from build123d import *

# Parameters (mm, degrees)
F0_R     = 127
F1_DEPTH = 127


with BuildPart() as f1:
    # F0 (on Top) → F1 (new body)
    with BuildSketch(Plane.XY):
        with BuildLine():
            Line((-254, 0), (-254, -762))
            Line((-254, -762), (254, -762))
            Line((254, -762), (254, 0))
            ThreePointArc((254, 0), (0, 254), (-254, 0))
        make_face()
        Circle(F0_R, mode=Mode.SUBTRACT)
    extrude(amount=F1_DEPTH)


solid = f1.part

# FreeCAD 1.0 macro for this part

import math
import FreeCAD as App
import Part
import Sketcher

V = App.Vector
Q = App.Units.Quantity

doc = App.newDocument("Part")
body = doc.addObject("PartDesign::Body", "Body")

sketch1 = body.newObject("Sketcher::SketchObject", "Sketch")
sketch1.AttachmentSupport = (doc.getObject("XY_Plane"), [""])
sketch1.MapMode = "FlatFace"
sketch1.addGeometry(Part.LineSegment(V(-254, 0, 0), V(-254, -762, 0)), False)
sketch1.addGeometry(Part.LineSegment(V(-254, -762, 0), V(254, -762, 0)), False)
sketch1.addGeometry(Part.LineSegment(V(254, -762, 0), V(254, 0, 0)), False)
sketch1.addGeometry(Part.ArcOfCircle(Part.Circle(V(0, 0, 0), V(0, 0, 1), 254), math.radians(0), math.radians(180)), False)
sketch1.addGeometry(Part.Circle(V(0, 0, 0), V(0, 0, 1), 127), False)
sketch1.addConstraint(Sketcher.Constraint("Coincident", 0, 2, 1, 1))
sketch1.addConstraint(Sketcher.Constraint("Coincident", 1, 2, 2, 1))
sketch1.addConstraint(Sketcher.Constraint("Tangent", 2, 2, 3, 1))
sketch1.addConstraint(Sketcher.Constraint("Tangent", 3, 2, 0, 1))
sketch1.addConstraint(Sketcher.Constraint("Vertical", 0))
sketch1.addConstraint(Sketcher.Constraint("Horizontal", 1))
sketch1.addConstraint(Sketcher.Constraint("Vertical", 2))
sketch1.addConstraint(Sketcher.Constraint("Coincident", 3, 3, -1, 1))
sketch1.addConstraint(Sketcher.Constraint("Coincident", 4, 3, -1, 1))
sketch1.addConstraint(Sketcher.Constraint("Diameter", 4, Q("10 in")))
sketch1.addConstraint(Sketcher.Constraint("Radius", 3, Q("10 in")))
sketch1.addConstraint(Sketcher.Constraint("DistanceY", 0, 2, 0, 1, Q("30 in")))
pad1 = body.newObject("PartDesign::Pad", "Pad")
pad1.Profile = sketch1
pad1.Length = Q("5 in")

doc.recompute()
